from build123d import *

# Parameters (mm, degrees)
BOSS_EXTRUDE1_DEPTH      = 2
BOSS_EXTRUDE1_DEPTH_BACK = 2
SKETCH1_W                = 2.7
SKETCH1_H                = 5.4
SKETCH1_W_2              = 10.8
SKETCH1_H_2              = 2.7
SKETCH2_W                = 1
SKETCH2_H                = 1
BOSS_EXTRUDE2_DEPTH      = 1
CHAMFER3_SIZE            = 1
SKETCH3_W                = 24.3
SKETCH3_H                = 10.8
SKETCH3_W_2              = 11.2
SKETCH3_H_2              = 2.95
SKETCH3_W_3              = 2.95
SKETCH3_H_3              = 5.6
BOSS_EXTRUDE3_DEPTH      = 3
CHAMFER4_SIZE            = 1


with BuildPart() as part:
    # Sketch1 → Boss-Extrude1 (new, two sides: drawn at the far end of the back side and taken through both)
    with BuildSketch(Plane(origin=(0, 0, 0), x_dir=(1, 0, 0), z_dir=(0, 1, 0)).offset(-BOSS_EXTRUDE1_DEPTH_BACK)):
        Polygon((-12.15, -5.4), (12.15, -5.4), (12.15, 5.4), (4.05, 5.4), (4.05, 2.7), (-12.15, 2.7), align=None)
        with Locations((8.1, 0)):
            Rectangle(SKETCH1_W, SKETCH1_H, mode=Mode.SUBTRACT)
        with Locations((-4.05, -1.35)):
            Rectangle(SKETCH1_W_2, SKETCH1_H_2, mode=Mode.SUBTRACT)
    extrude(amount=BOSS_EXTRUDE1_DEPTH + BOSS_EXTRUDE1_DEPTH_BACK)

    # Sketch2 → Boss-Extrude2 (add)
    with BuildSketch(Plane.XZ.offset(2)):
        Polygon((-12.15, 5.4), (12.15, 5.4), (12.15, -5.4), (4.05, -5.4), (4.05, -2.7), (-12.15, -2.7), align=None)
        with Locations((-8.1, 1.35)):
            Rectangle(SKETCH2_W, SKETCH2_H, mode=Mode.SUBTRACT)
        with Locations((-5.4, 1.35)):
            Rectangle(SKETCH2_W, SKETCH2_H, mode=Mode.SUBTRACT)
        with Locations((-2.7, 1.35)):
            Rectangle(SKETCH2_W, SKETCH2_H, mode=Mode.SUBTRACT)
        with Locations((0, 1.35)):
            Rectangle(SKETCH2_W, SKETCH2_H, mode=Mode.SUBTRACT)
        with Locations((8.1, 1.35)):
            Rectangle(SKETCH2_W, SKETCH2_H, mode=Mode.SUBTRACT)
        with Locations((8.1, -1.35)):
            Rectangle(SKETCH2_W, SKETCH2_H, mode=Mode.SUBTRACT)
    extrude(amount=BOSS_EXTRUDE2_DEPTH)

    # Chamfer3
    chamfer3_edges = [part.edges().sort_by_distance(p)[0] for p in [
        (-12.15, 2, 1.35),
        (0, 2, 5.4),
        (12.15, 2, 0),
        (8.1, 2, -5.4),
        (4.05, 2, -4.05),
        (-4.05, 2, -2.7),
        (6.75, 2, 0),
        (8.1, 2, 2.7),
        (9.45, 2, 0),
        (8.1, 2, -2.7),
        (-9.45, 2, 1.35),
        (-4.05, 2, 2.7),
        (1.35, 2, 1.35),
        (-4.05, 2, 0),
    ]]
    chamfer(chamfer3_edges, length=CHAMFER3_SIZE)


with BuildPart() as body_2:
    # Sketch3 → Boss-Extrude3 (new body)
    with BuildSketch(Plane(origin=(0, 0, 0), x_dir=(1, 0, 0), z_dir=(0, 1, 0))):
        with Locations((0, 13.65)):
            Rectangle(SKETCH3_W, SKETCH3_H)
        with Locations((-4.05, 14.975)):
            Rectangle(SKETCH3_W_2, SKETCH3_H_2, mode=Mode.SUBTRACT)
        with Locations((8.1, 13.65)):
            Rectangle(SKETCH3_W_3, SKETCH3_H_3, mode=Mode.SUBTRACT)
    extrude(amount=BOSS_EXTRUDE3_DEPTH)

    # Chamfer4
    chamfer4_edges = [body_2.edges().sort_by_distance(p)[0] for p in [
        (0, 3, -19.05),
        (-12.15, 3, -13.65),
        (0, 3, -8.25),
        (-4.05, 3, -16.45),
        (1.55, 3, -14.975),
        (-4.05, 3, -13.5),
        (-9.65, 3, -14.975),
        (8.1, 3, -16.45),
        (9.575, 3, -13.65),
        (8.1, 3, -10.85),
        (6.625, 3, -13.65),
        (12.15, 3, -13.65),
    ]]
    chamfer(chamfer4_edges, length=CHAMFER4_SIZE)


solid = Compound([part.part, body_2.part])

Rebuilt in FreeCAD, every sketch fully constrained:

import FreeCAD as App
import Part
import Sketcher


def edges_at(feature, points):
    """Names of the edges that pass closest to the given points."""
    edges = feature.Shape.Edges
    near = lambda p: min(range(len(edges)), key=lambda i: edges[i].distToShape(Part.Vertex(*p))[0])
    return sorted({f"Edge{near(p) + 1}" for p in points})


def add_polygon(sketch, points):
    """Adds a closed chain of lines whose ends are joined by coincident constraints."""
    first, n = sketch.GeometryCount, len(points)
    for a, b in zip(points, points[1:] + points[:1]):
        sketch.addGeometry(Part.LineSegment(App.Vector(*a, 0), App.Vector(*b, 0)), False)
    for i in range(n):
        sketch.addConstraint(Sketcher.Constraint("Coincident", first + i, 2, first + (i + 1) % n, 1))

doc = App.newDocument("Part")
params = doc.addObject("Spreadsheet::Sheet", "Params")
for row, (alias, value) in enumerate([
    ("sketch1_width", "24.3 mm"),
    ("sketch1_width2", "8.1 mm"),
    ("pad1_length", "2 mm"),
    ("pad1_length2", "2 mm"),
    ("sketch2_width", "1 mm"),
    ("sketch2_width2", "24.3 mm"),
    ("sketch2_width3", "16.2 mm"),
    ("sketch2_height", "2.7 mm"),
    ("pad2_length", "1 mm"),
    ("chamfer_size", "1 mm"),
    ("sketch3_width", "24.3 mm"),
    ("sketch3_width2", "11.2 mm"),
    ("sketch3_height", "10.8 mm"),
    ("sketch3_height2", "5.6 mm"),
    ("sketch3_width3", "2.95 mm"),
    ("pad3_length", "3 mm"),
    ("chamfer2_size", "1 mm"),
], start=1):
    params.set(f"A{row}", alias)
    params.set(f"B{row}", "=" + value)
    params.setAlias(f"B{row}", alias)

body = doc.addObject("PartDesign::Body", "Body")

sketch1 = body.newObject("Sketcher::SketchObject", "Sketch")
sketch1.AttachmentSupport = (doc.getObject("XZ_Plane"), [""])
sketch1.MapMode = "FlatFace"
add_polygon(sketch1, [(-12.2, 5.4), (12.2, 5.4), (12.2, -5.4), (4, -5.4), (4, -2.7), (-12.2, -2.7)])
add_polygon(sketch1, [(1.4, 2.7), (-9.4, 2.7), (-9.4, 0), (1.4, 0)])
add_polygon(sketch1, [(9.4, 2.7), (6.8, 2.7), (6.8, -2.7), (9.4, -2.7)])
sketch1.addConstraint(Sketcher.Constraint("Horizontal", 0))
sketch1.addConstraint(Sketcher.Constraint("Vertical", 1))
sketch1.addConstraint(Sketcher.Constraint("Horizontal", 2))
sketch1.addConstraint(Sketcher.Constraint("Vertical", 3))
sketch1.addConstraint(Sketcher.Constraint("Horizontal", 4))
sketch1.addConstraint(Sketcher.Constraint("Vertical", 5))
sketch1.addConstraint(Sketcher.Constraint("Horizontal", 6))
sketch1.addConstraint(Sketcher.Constraint("Vertical", 7))
sketch1.addConstraint(Sketcher.Constraint("Horizontal", 8))
sketch1.addConstraint(Sketcher.Constraint("Vertical", 9))
sketch1.addConstraint(Sketcher.Constraint("Horizontal", 10))
sketch1.addConstraint(Sketcher.Constraint("Vertical", 11))
sketch1.addConstraint(Sketcher.Constraint("Horizontal", 12))
sketch1.addConstraint(Sketcher.Constraint("Vertical", 13))
sketch1.addConstraint(Sketcher.Constraint("Symmetric", 1, 2, 5, 2, -1, 1))
sketch1.addConstraint(Sketcher.Constraint("Symmetric", 6, 2, 12, 2, -1, 1))
sketch1.addConstraint(Sketcher.Constraint("PointOnObject", 7, 2, -1))
sketch1.addConstraint(Sketcher.Constraint("Horizontal", 9, 2, 10, 2))
sketch1.addConstraint(Sketcher.Constraint("Horizontal", 4, 2, 11, 2))
sketch1.addConstraint(Sketcher.Constraint("Equal", 8, 1))
sketch1.addConstraint(Sketcher.Constraint("Equal", 12, 3))
sketch1.addConstraint(Sketcher.Constraint("Equal", 2, 5))
sketch1.addConstraint(Sketcher.Constraint("Equal", 3, 7))
sketch1.addConstraint(Sketcher.Constraint("DistanceX", 0, 1, 0, 2, 24.3))
sketch1.addConstraint(Sketcher.Constraint("DistanceX", 2, 2, 2, 1, 8.1))
sketch1.addConstraint(Sketcher.Constraint("DistanceX", 5, 2, 6, 2, 2.7))
sketch1.setExpression("Constraints[37]", "Params.sketch1_width")
sketch1.setExpression("Constraints[38]", "Params.sketch1_width2")
pad1 = body.newObject("PartDesign::Pad", "Pad")
pad1.Profile = sketch1
pad1.Type = "TwoLengths"
pad1.setExpression("Length", "Params.pad1_length")
pad1.setExpression("Length2", "Params.pad1_length2")
pad1.Reversed = True

sketch2 = body.newObject("Sketcher::SketchObject", "Sketch001")
sketch2.AttachmentSupport = (doc.getObject("XZ_Plane"), [""])
sketch2.MapMode = "FlatFace"
sketch2.AttachmentOffset = App.Placement(App.Vector(0, 0, 2), App.Rotation())
add_polygon(sketch2, [(12.2, 5.4), (-12.2, 5.4), (-12.2, -2.7), (4, -2.7), (4, -5.4), (12.2, -5.4)])
add_polygon(sketch2, [(7.6, -1.9), (7.6, -0.8), (8.6, -0.8), (8.6, -1.9)])
add_polygon(sketch2, [(7.6, 0.8), (7.6, 1.9), (8.6, 1.9), (8.6, 0.8)])
add_polygon(sketch2, [(-0.5, 0.8), (-0.5, 1.9), (0.5, 1.9), (0.5, 0.8)])
add_polygon(sketch2, [(-3.2, 0.8), (-3.2, 1.9), (-2.2, 1.9), (-2.2, 0.8)])
add_polygon(sketch2, [(-5.9, 0.8), (-5.9, 1.9), (-4.9, 1.9), (-4.9, 0.8)])
add_polygon(sketch2, [(-8.6, 0.8), (-8.6, 1.9), (-7.6, 1.9), (-7.6, 0.8)])
sketch2.addConstraint(Sketcher.Constraint("Horizontal", 0))
sketch2.addConstraint(Sketcher.Constraint("Vertical", 1))
sketch2.addConstraint(Sketcher.Constraint("Horizontal", 2))
sketch2.addConstraint(Sketcher.Constraint("Vertical", 3))
sketch2.addConstraint(Sketcher.Constraint("Horizontal", 4))
sketch2.addConstraint(Sketcher.Constraint("Vertical", 5))
sketch2.addConstraint(Sketcher.Constraint("Vertical", 6))
sketch2.addConstraint(Sketcher.Constraint("Horizontal", 7))
sketch2.addConstraint(Sketcher.Constraint("Vertical", 8))
sketch2.addConstraint(Sketcher.Constraint("Horizontal", 9))
sketch2.addConstraint(Sketcher.Constraint("Vertical", 10))
sketch2.addConstraint(Sketcher.Constraint("Horizontal", 11))
sketch2.addConstraint(Sketcher.Constraint("Vertical", 12))
sketch2.addConstraint(Sketcher.Constraint("Horizontal", 13))
sketch2.addConstraint(Sketcher.Constraint("Vertical", 14))
sketch2.addConstraint(Sketcher.Constraint("Horizontal", 15))
sketch2.addConstraint(Sketcher.Constraint("Vertical", 16))
sketch2.addConstraint(Sketcher.Constraint("Horizontal", 17))
sketch2.addConstraint(Sketcher.Constraint("Vertical", 18))
sketch2.addConstraint(Sketcher.Constraint("Horizontal", 19))
sketch2.addConstraint(Sketcher.Constraint("Vertical", 20))
sketch2.addConstraint(Sketcher.Constraint("Horizontal", 21))
sketch2.addConstraint(Sketcher.Constraint("Vertical", 22))
sketch2.addConstraint(Sketcher.Constraint("Horizontal", 23))
sketch2.addConstraint(Sketcher.Constraint("Vertical", 24))
sketch2.addConstraint(Sketcher.Constraint("Horizontal", 25))
sketch2.addConstraint(Sketcher.Constraint("Vertical", 26))
sketch2.addConstraint(Sketcher.Constraint("Horizontal", 27))
sketch2.addConstraint(Sketcher.Constraint("Vertical", 28))
sketch2.addConstraint(Sketcher.Constraint("Horizontal", 29))
sketch2.addConstraint(Sketcher.Constraint("Symmetric", 0, 2, 4, 2, -1, 1))
sketch2.addConstraint(Sketcher.Constraint("Symmetric", 8, 2, 26, 2, -1, 1))
sketch2.addConstraint(Sketcher.Constraint("Symmetric", 6, 2, 28, 2, -1, 1))
sketch2.addConstraint(Sketcher.Constraint("Symmetric", 11, 2, 26, 2, -2))
sketch2.addConstraint(Sketcher.Constraint("Symmetric", 13, 2, 28, 2, -2))
sketch2.addConstraint(Sketcher.Constraint("Horizontal", 11, 2, 14, 2))
sketch2.addConstraint(Sketcher.Constraint("Horizontal", 13, 2, 16, 2))
sketch2.addConstraint(Sketcher.Constraint("Horizontal", 15, 2, 18, 2))
sketch2.addConstraint(Sketcher.Constraint("Horizontal", 17, 2, 20, 2))
sketch2.addConstraint(Sketcher.Constraint("Horizontal", 19, 2, 22, 2))
sketch2.addConstraint(Sketcher.Constraint("Horizontal", 21, 2, 24, 2))
sketch2.addConstraint(Sketcher.Constraint("Equal", 13, 15))
sketch2.addConstraint(Sketcher.Constraint("Equal", 17, 19))
sketch2.addConstraint(Sketcher.Constraint("Equal", 21, 23))
sketch2.addConstraint(Sketcher.Constraint("Equal", 4, 1))
sketch2.addConstraint(Sketcher.Constraint("Equal", 29, 6))
sketch2.addConstraint(Sketcher.Constraint("DistanceX", 7, 1, 7, 2, 1.0))
sketch2.addConstraint(Sketcher.Constraint("DistanceX", 0, 2, 0, 1, 24.3))
sketch2.addConstraint(Sketcher.Constraint("DistanceX", 2, 1, 2, 2, 16.2))
sketch2.addConstraint(Sketcher.Constraint("DistanceY", 3, 2, 3, 1, 2.7))
sketch2.addConstraint(Sketcher.Constraint("DistanceX", -1, 1, 6, 2, 7.6))
sketch2.addConstraint(Sketcher.Constraint("DistanceX", 14, 2, -1, 1, 0.5))
sketch2.addConstraint(Sketcher.Constraint("DistanceX", 18, 2, -1, 1, 3.2))
sketch2.addConstraint(Sketcher.Constraint("DistanceX", 22, 2, -1, 1, 5.9))
sketch2.addConstraint(Sketcher.Constraint("DistanceY", 6, 2, 10, 2, 2.7))
sketch2.setExpression("Constraints[76]", "Params.sketch2_width")
sketch2.setExpression("Constraints[77]", "Params.sketch2_width2")
sketch2.setExpression("Constraints[78]", "Params.sketch2_width3")
sketch2.setExpression("Constraints[79]", "Params.sketch2_height")
pad2 = body.newObject("PartDesign::Pad", "Pad001")
pad2.Profile = sketch2
pad2.setExpression("Length", "Params.pad2_length")
doc.recompute()

chamfer = body.newObject("PartDesign::Chamfer", "Chamfer")
chamfer.Base = (pad2, edges_at(pad2, [
    (-12.15, 2, 1.35),
    (0, 2, 5.4),
    (12.15, 2, 0),
    (8.1, 2, -5.4),
    (4.05, 2, -4.05),
    (-4.05, 2, -2.7),
    (6.75, 2, 0),
    (8.1, 2, 2.7),
    (9.45, 2, 0),
    (8.1, 2, -2.7),
    (-9.45, 2, 1.35),
    (-4.05, 2, 2.7),
    (1.35, 2, 1.35),
    (-4.05, 2, 0),
]))
chamfer.setExpression("Size", "Params.chamfer_size")
body2 = doc.addObject("PartDesign::Body", "Body001")

sketch3 = body2.newObject("Sketcher::SketchObject", "Sketch002")
sketch3.AttachmentSupport = (doc.getObject("XZ_Plane001"), [""])
sketch3.MapMode = "FlatFace"
add_polygon(sketch3, [(-12.2, -19.1), (-12.2, -8.2), (12.2, -8.2), (12.2, -19.1)])
add_polygon(sketch3, [(1.6, -13.5), (-9.7, -13.5), (-9.7, -16.4), (1.6, -16.4)])
add_polygon(sketch3, [(9.6, -10.8), (6.6, -10.8), (6.6, -16.4), (9.6, -16.4)])
sketch3.addConstraint(Sketcher.Constraint("Vertical", 0))
sketch3.addConstraint(Sketcher.Constraint("Horizontal", 1))
sketch3.addConstraint(Sketcher.Constraint("Vertical", 2))
sketch3.addConstraint(Sketcher.Constraint("Horizontal", 3))
sketch3.addConstraint(Sketcher.Constraint("Horizontal", 4))
sketch3.addConstraint(Sketcher.Constraint("Vertical", 5))
sketch3.addConstraint(Sketcher.Constraint("Horizontal", 6))
sketch3.addConstraint(Sketcher.Constraint("Vertical", 7))
sketch3.addConstraint(Sketcher.Constraint("Horizontal", 8))
sketch3.addConstraint(Sketcher.Constraint("Vertical", 9))
sketch3.addConstraint(Sketcher.Constraint("Horizontal", 10))
sketch3.addConstraint(Sketcher.Constraint("Vertical", 11))
sketch3.addConstraint(Sketcher.Constraint("Horizontal", 6, 2, 9, 2))
sketch3.addConstraint(Sketcher.Constraint("Equal", 10, 5))
sketch3.addConstraint(Sketcher.Constraint("DistanceX", 1, 1, 1, 2, 24.3))
sketch3.addConstraint(Sketcher.Constraint("DistanceX", 4, 2, 4, 1, 11.2))
sketch3.addConstraint(Sketcher.Constraint("DistanceY", 0, 1, 0, 2, 10.8))
sketch3.addConstraint(Sketcher.Constraint("DistanceY", 9, 2, 9, 1, 5.6))
sketch3.addConstraint(Sketcher.Constraint("DistanceX", 8, 2, 8, 1, 2.95))
sketch3.addConstraint(Sketcher.Constraint("DistanceY", 4, 2, -1, 1, 13.5))
sketch3.addConstraint(Sketcher.Constraint("DistanceX", 0, 2, 4, 2, 2.5))
sketch3.addConstraint(Sketcher.Constraint("DistanceY", 3, 2, 5, 2, 2.6))
sketch3.addConstraint(Sketcher.Constraint("DistanceX", 0, 2, -1, 1, 12.15))
sketch3.addConstraint(Sketcher.Constraint("DistanceX", -1, 1, 8, 2, 6.625))
sketch3.setExpression("Constraints[26]", "Params.sketch3_width")
sketch3.setExpression("Constraints[27]", "Params.sketch3_width2")
sketch3.setExpression("Constraints[28]", "Params.sketch3_height")
sketch3.setExpression("Constraints[29]", "Params.sketch3_height2")
sketch3.setExpression("Constraints[30]", "Params.sketch3_width3")
pad3 = body2.newObject("PartDesign::Pad", "Pad002")
pad3.Profile = sketch3
pad3.setExpression("Length", "Params.pad3_length")
pad3.Reversed = True
doc.recompute()

chamfer2 = body2.newObject("PartDesign::Chamfer", "Chamfer001")
chamfer2.Base = (pad3, edges_at(pad3, [
    (0, 3, -19.05),
    (-12.15, 3, -13.65),
    (0, 3, -8.25),
    (-4.05, 3, -16.45),
    (1.55, 3, -14.975),
    (-4.05, 3, -13.5),
    (-9.65, 3, -14.975),
    (8.1, 3, -16.45),
    (9.575, 3, -13.65),
    (8.1, 3, -10.85),
    (6.625, 3, -13.65),
    (12.15, 3, -13.65),
]))
chamfer2.setExpression("Size", "Params.chamfer2_size")

doc.recompute()
